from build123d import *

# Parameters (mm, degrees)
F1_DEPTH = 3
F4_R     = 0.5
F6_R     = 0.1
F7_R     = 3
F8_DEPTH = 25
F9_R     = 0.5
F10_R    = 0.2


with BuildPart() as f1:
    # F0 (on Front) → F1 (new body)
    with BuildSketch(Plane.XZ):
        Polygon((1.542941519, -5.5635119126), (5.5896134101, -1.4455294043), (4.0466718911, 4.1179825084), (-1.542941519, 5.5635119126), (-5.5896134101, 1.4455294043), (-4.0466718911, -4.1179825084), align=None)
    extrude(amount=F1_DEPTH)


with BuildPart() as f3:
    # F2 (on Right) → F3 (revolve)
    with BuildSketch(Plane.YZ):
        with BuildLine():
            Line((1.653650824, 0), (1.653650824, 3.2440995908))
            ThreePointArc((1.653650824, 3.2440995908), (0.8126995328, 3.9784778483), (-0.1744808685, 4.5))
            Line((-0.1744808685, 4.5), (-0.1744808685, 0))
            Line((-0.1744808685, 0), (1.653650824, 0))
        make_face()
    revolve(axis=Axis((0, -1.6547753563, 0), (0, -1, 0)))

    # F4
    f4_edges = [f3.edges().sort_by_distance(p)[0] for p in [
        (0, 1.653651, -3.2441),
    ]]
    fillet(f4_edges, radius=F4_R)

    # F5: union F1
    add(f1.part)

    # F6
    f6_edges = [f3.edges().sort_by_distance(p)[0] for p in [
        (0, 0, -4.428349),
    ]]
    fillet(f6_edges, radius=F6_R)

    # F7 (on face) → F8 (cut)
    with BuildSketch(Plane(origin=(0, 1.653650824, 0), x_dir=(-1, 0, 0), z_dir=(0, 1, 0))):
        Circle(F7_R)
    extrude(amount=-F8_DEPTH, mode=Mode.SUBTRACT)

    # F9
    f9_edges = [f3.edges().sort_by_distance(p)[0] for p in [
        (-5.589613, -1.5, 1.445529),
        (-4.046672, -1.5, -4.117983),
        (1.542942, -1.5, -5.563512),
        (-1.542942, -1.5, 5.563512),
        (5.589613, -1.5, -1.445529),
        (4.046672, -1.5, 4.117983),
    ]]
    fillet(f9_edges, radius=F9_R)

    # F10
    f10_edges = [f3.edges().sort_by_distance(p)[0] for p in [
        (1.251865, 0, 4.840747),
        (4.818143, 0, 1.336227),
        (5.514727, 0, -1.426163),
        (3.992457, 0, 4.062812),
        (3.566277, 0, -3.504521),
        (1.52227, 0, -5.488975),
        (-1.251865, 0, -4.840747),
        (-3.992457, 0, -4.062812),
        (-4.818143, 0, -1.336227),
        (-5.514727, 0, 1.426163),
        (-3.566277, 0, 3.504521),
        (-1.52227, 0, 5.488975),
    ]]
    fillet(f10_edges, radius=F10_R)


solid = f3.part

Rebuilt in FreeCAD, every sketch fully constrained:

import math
import FreeCAD as App
import Part
import Sketcher
from FreeCAD import Vector


def edges_at(feature, points):
    """Names of the edges that pass closest to the given points."""
    edges = feature.Shape.Edges
    near = lambda p: min(range(len(edges)), key=lambda i: edges[i].distToShape(Part.Vertex(*p))[0])
    return sorted({f"Edge{near(p) + 1}" for p in points})

doc = App.newDocument("Part")
params = doc.addObject("Spreadsheet::Sheet", "Params")
for row, (alias, value) in enumerate([
    ("pad1_length", "3 mm"),
    ("sketch2_height", "4.5 mm"),
    ("revolution_angle", "360 deg"),
    ("fillet_radius", "0.5 mm"),
    ("fillet2_radius", "0.1 mm"),
    ("sketch3_diameter", "6 mm"),
    ("pocket1_length", "25 mm"),
    ("fillet3_radius", "0.5 mm"),
    ("fillet4_radius", "0.2 mm"),
], start=1):
    params.set(f"A{row}", alias)
    params.set(f"B{row}", "=" + value)
    params.setAlias(f"B{row}", alias)

body = doc.addObject("PartDesign::Body", "Body")

# Sketch on XZ plane
sketch1 = doc.addObject("Sketcher::SketchObject", "Sketch")
body.addObject(sketch1)
sketch1.AttachmentSupport = (doc.XZ_Plane, [""])
sketch1.MapMode = "FlatFace"
sketch1.addGeometry([
    Part.LineSegment(Vector(1.542942, -5.563512, 0), Vector(5.589613, -1.445529, 0)),  # 0
    Part.LineSegment(Vector(5.589613, -1.445529, 0), Vector(4.046672, 4.117983, 0)),  # 1
    Part.LineSegment(Vector(4.046672, 4.117983, 0), Vector(-1.542942, 5.563512, 0)),  # 2
    Part.LineSegment(Vector(-1.542942, 5.563512, 0), Vector(-5.589613, 1.445529, 0)),  # 3
    Part.LineSegment(Vector(-5.589613, 1.445529, 0), Vector(-4.046672, -4.117983, 0)),  # 4
    Part.LineSegment(Vector(-4.046672, -4.117983, 0), Vector(1.542942, -5.563512, 0)),  # 5
], False)
sketch1.addConstraint([
    Sketcher.Constraint("Coincident", 0, 2, 1, 1),
    Sketcher.Constraint("Coincident", 1, 2, 2, 1),
    Sketcher.Constraint("Coincident", 2, 2, 3, 1),
    Sketcher.Constraint("Coincident", 3, 2, 4, 1),
    Sketcher.Constraint("Coincident", 4, 2, 5, 1),
    Sketcher.Constraint("Coincident", 5, 2, 0, 1),
    Sketcher.Constraint("Symmetric", 0, 2, 3, 2, -1, 1),
    Sketcher.Constraint("Symmetric", 1, 2, 4, 2, -1, 1),
    Sketcher.Constraint("Symmetric", 2, 2, 5, 2, -1, 1),
    Sketcher.Constraint("Equal", 0, 1),
    Sketcher.Constraint("Equal", 1, 2),
    Sketcher.Constraint("DistanceY", 0, 2, -1, 1, 1.445529),
    Sketcher.Constraint("DistanceX", -1, 1, 1, 2, 4.046672),
    Sketcher.Constraint("DistanceX", 2, 2, -1, 1, 1.542942),
    Sketcher.Constraint("DistanceY", -1, 1, 2, 2, 5.563512),
])
pad1 = doc.addObject("PartDesign::Pad", "Pad")
body.addObject(pad1)
pad1.Profile = sketch1
pad1.setExpression("Length", "Params.pad1_length")
body2 = doc.addObject("PartDesign::Body", "Body001")

# Sketch on YZ plane
sketch2 = doc.addObject("Sketcher::SketchObject", "Sketch001")
body2.addObject(sketch2)
sketch2.AttachmentSupport = (doc.getObject("YZ_Plane001"), [""])
sketch2.MapMode = "FlatFace"
sketch2.addGeometry([
    Part.LineSegment(Vector(1.653651, 0, 0), Vector(1.653651, 3.2441, 0)),
    Part.ArcOfCircle(Part.Circle(Vector(-1.920458, 0, 0), Vector(0, 0, 1), 4.826845), math.radians(42.22898), math.radians(68.794)),
    Part.LineSegment(Vector(-0.174481, 4.5, 0), Vector(-0.174481, 0, 0)),
    Part.LineSegment(Vector(-0.174481, 0, 0), Vector(1.653651, 0, 0)),
], False)
sketch2.addConstraint([
    Sketcher.Constraint("Coincident", 0, 2, 1, 1),
    Sketcher.Constraint("Coincident", 1, 2, 2, 1),
    Sketcher.Constraint("Coincident", 2, 2, 3, 1),
    Sketcher.Constraint("Coincident", 3, 2, 0, 1),
    Sketcher.Constraint("Vertical", 0),
    Sketcher.Constraint("Vertical", 2),
    Sketcher.Constraint("Horizontal", 3),
    Sketcher.Constraint("PointOnObject", 1, 3, -1),
    Sketcher.Constraint("PointOnObject", 2, 2, -1),
    Sketcher.Constraint("DistanceY", 2, 2, 2, 1, 4.5),
    Sketcher.Constraint("DistanceY", 0, 1, 0, 2, 3.2441),
    Sketcher.Constraint("Radius", 1, 4.826845),
    Sketcher.Constraint("DistanceX", 1, 3, -1, 1, 1.920458),
])
sketch2.setExpression("Constraints[9]", "Params.sketch2_height")
revolution = doc.addObject("PartDesign::Revolution", "Revolution")
body2.addObject(revolution)
revolution.Profile = sketch2
revolution.ReferenceAxis = (sketch2, ["H_Axis"])
revolution.setExpression("Angle", "Params.revolution_angle")
doc.recompute()

fillet = doc.addObject("PartDesign::Fillet", "Fillet")
body2.addObject(fillet)
fillet.Base = (revolution, edges_at(revolution, [(0, 1.654, -3.244)]))
fillet.setExpression("Radius", "Params.fillet_radius")
doc.recompute()

boolean = doc.addObject("PartDesign::Boolean", "Boolean")
body2.addObject(boolean)
boolean.Type = "Fuse"
boolean.addObjects([body])
doc.recompute()

fillet2 = doc.addObject("PartDesign::Fillet", "Fillet001")
body2.addObject(fillet2)
fillet2.Base = (boolean, edges_at(boolean, [(0, 0, -4.428)]))
fillet2.setExpression("Radius", "Params.fillet2_radius")

# Sketch on XZ plane
sketch3 = doc.addObject("Sketcher::SketchObject", "Sketch002")
body2.addObject(sketch3)
sketch3.AttachmentSupport = (doc.getObject("XZ_Plane001"), [""])
sketch3.MapMode = "FlatFace"
sketch3.AttachmentOffset = App.Placement(Vector(0, 0, -1.653651), App.Rotation())
sketch3.addGeometry(Part.Circle(Vector(0, 0, 0), Vector(0, 0, 1), 3), False)
sketch3.addConstraint([
    Sketcher.Constraint("Coincident", 0, 3, -1, 1),
    Sketcher.Constraint("Diameter", 0, 6.0),
])
sketch3.setExpression("Constraints[1]", "Params.sketch3_diameter")
pocket1 = doc.addObject("PartDesign::Pocket", "Pocket")
body2.addObject(pocket1)
pocket1.Profile = sketch3
pocket1.setExpression("Length", "Params.pocket1_length")
pocket1.Reversed = True
doc.recompute()

fillet3 = doc.addObject("PartDesign::Fillet", "Fillet002")
body2.addObject(fillet3)
fillet3.Base = (pocket1, edges_at(pocket1, [
    (-5.59, -1.5, 1.446),
    (-4.047, -1.5, -4.118),
    (1.543, -1.5, -5.564),
    (-1.543, -1.5, 5.564),
    (5.59, -1.5, -1.446),
    (4.047, -1.5, 4.118),
]))
fillet3.setExpression("Radius", "Params.fillet3_radius")
doc.recompute()

fillet4 = doc.addObject("PartDesign::Fillet", "Fillet003")
body2.addObject(fillet4)
fillet4.Base = (fillet3, edges_at(fillet3, [
    (1.252, 0, 4.841),
    (4.818, 0, 1.336),
    (5.515, 0, -1.426),
    (3.992, 0, 4.063),
    (3.566, 0, -3.505),
    (1.522, 0, -5.489),
    (-1.252, 0, -4.841),
    (-3.992, 0, -4.063),
    (-4.818, 0, -1.336),
    (-5.515, 0, 1.426),
    (-3.566, 0, 3.505),
    (-1.522, 0, 5.489),
]))
fillet4.setExpression("Radius", "Params.fillet4_radius")

doc.recompute()
